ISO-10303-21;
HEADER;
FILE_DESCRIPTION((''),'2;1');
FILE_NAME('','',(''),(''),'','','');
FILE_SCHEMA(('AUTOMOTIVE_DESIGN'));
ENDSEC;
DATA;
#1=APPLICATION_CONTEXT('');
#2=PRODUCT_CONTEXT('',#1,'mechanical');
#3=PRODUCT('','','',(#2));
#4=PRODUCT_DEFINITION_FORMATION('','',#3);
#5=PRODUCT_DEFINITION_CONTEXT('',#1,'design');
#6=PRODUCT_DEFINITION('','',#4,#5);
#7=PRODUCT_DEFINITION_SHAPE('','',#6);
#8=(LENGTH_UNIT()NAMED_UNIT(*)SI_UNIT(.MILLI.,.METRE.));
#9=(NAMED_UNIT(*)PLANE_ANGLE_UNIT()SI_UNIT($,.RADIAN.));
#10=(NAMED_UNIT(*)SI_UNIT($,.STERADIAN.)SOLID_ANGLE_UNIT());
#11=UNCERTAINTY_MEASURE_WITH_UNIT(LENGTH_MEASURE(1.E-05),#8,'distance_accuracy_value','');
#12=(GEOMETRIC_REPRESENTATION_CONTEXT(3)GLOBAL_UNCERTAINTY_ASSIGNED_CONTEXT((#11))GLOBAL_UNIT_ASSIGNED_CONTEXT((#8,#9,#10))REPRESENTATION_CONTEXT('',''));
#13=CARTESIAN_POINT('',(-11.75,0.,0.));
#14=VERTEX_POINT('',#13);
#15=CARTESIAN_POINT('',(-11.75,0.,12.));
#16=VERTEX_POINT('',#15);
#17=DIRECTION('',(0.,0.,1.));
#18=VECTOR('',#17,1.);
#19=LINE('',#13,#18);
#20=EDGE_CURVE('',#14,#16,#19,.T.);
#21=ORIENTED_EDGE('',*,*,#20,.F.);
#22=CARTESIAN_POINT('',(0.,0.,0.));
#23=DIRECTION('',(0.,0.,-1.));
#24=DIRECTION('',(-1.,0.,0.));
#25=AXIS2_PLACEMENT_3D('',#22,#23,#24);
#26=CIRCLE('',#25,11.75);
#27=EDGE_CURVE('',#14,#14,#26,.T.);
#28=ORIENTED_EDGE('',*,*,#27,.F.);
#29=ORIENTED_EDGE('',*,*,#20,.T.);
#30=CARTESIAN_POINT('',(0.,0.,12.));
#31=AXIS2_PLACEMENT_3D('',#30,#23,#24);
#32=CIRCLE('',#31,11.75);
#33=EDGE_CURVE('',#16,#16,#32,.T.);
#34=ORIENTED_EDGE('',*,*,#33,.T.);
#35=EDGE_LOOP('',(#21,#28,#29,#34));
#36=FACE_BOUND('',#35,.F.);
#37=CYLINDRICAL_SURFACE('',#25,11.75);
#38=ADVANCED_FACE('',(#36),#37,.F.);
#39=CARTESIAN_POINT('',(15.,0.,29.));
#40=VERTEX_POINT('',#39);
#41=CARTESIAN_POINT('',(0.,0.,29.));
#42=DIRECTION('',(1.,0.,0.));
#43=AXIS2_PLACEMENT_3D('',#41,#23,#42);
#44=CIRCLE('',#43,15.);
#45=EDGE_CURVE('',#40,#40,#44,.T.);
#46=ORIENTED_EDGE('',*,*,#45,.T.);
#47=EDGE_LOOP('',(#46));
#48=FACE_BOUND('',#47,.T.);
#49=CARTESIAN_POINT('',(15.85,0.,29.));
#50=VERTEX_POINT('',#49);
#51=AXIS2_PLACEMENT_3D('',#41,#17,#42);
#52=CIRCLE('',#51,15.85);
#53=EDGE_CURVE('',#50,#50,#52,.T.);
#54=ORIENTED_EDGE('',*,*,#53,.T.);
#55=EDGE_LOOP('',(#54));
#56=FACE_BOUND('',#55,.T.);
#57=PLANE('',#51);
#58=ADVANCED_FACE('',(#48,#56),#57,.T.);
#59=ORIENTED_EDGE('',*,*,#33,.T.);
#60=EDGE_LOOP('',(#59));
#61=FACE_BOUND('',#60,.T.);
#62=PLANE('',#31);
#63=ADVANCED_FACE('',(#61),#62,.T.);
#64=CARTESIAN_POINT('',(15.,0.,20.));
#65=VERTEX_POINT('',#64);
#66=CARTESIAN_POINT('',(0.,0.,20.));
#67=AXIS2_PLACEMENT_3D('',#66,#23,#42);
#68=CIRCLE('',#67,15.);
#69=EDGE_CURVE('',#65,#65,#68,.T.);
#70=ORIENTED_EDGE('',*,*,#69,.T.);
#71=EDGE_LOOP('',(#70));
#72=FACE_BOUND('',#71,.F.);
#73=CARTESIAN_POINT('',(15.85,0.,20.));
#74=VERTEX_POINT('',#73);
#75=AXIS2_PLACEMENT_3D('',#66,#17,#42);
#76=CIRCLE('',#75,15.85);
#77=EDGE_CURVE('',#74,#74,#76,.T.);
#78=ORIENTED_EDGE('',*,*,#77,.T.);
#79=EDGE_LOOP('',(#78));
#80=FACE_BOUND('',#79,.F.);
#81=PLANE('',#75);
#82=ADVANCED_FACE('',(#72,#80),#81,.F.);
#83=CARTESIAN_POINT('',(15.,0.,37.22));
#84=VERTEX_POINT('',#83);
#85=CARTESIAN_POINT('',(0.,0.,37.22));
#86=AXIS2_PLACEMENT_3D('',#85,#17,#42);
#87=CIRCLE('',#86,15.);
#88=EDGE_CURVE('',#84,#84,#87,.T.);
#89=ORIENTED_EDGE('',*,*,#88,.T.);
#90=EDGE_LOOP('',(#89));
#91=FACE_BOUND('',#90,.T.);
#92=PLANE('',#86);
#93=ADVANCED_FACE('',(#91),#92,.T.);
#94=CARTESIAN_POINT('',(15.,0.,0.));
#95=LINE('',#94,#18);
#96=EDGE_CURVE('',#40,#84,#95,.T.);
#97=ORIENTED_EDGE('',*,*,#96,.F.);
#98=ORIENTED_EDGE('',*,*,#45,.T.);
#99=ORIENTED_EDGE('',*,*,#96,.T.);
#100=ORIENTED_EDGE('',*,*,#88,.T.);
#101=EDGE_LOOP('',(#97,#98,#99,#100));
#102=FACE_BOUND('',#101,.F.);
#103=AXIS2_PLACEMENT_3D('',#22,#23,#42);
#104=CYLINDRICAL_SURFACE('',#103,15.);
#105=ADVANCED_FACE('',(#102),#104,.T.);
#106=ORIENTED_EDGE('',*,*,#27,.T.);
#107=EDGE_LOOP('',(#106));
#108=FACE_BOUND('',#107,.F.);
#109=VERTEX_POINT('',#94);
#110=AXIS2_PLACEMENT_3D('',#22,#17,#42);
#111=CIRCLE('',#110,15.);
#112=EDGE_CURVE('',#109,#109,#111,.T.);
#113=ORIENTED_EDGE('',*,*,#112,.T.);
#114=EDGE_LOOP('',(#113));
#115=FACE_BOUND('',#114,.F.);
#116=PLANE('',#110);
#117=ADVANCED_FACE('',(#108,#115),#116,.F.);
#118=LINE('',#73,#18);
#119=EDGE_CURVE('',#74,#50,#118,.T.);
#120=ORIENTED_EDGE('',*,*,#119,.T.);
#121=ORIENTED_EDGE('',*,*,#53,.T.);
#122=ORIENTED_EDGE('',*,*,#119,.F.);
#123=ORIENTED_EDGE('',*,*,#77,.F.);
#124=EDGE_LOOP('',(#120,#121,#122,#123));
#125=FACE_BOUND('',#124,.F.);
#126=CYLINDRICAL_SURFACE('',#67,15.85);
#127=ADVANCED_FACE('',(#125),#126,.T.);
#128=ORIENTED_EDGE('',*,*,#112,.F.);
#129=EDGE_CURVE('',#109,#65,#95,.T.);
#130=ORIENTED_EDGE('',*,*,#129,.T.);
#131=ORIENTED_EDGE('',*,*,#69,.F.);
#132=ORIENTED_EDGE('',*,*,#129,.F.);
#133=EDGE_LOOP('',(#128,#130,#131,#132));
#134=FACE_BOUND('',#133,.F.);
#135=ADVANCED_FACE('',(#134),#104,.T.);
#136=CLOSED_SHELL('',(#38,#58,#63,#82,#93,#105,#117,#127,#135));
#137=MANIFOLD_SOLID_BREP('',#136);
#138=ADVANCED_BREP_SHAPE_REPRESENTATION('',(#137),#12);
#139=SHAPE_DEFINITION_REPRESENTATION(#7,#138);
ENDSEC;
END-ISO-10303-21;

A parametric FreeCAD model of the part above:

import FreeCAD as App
import Part
import Sketcher
Q = App.Units.Quantity

doc = App.newDocument("Part")
body = doc.addObject("PartDesign::Body", "Body")

# Sketch on XY plane
sketch1 = body.newObject("Sketcher::SketchObject", "Sketch")
sketch1.AttachmentSupport = (doc.getObject("XY_Plane"), [""])
sketch1.MapMode = "FlatFace"
sketch1.addGeometry(Part.Circle(App.Vector(0, 0, 0), App.Vector(0, 0, 1), 15), False)
sketch1.addConstraint([
    Sketcher.Constraint("Coincident", 0, 3, -1, 1),
    Sketcher.Constraint("Diameter", 0, Q("30 mm")),
])
pad1 = body.newObject("PartDesign::Pad", "Pad")
pad1.Profile = sketch1
pad1.Length = 37.22

# Sketch on XY plane
sketch2 = body.newObject("Sketcher::SketchObject", "Sketch001")
sketch2.AttachmentSupport = (doc.getObject("XY_Plane"), [""])
sketch2.MapMode = "FlatFace"
sketch2.AttachmentOffset = App.Placement(App.Vector(0, 0, 20), App.Rotation())
sketch2.addGeometry(Part.Circle(App.Vector(0, 0, 0), App.Vector(0, 0, 1), 16), False)
sketch2.addConstraint([
    Sketcher.Constraint("Coincident", 0, 3, -1, 1),
    Sketcher.Constraint("Diameter", 0, Q("31.7 mm")),
])
pad2 = body.newObject("PartDesign::Pad", "Pad001")
pad2.Profile = sketch2
pad2.Length = 9

# Sketch on XY plane
sketch3 = body.newObject("Sketcher::SketchObject", "Sketch002")
sketch3.AttachmentSupport = (doc.getObject("XY_Plane"), [""])
sketch3.MapMode = "FlatFace"
sketch3.addGeometry(Part.Circle(App.Vector(0, 0, 0), App.Vector(0, 0, 1), 12), False)
sketch3.addConstraint([
    Sketcher.Constraint("Coincident", 0, 3, -1, 1),
    Sketcher.Constraint("Diameter", 0, Q("23.5 mm")),
])
pocket1 = body.newObject("PartDesign::Pocket", "Pocket")
pocket1.Profile = sketch3
pocket1.Length = 12
pocket1.Reversed = True

doc.recompute()
